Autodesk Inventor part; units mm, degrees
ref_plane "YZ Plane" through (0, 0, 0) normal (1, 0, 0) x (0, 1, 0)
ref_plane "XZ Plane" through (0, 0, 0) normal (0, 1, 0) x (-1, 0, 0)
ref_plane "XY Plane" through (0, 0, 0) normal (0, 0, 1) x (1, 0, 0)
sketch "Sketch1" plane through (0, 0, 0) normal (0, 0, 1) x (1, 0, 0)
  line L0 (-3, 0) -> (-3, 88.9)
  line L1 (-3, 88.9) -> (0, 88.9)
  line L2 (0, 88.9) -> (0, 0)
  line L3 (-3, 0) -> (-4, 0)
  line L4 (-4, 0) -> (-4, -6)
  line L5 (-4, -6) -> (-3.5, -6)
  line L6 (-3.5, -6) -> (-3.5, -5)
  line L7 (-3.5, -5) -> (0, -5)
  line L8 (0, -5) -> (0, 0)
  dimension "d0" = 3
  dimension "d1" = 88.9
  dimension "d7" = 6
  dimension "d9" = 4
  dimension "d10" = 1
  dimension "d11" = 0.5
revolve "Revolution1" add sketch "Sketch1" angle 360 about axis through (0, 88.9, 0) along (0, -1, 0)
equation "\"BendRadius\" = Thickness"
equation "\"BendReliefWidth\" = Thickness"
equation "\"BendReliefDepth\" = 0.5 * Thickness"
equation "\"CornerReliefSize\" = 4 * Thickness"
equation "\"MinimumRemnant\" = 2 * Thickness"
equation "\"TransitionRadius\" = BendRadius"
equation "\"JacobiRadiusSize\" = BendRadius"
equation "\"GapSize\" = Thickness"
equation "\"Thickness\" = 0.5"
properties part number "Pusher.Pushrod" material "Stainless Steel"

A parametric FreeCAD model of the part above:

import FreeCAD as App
import Part
import Sketcher

doc = App.newDocument("Part")
body = doc.addObject("PartDesign::Body", "Body")

sketch1 = body.newObject("Sketcher::SketchObject", "Sketch")
sketch1.AttachmentSupport = (doc.getObject("XY_Plane"), [""])
sketch1.MapMode = "FlatFace"
sketch1.addGeometry(Part.LineSegment(App.Vector(-3, 88.9, 0), App.Vector(-3, 0, 0)), False)
sketch1.addGeometry(Part.LineSegment(App.Vector(-3, 0, 0), App.Vector(-4, 0, 0)), False)
sketch1.addGeometry(Part.LineSegment(App.Vector(-4, 0, 0), App.Vector(-4, -6, 0)), False)
sketch1.addGeometry(Part.LineSegment(App.Vector(-4, -6, 0), App.Vector(-3.5, -6, 0)), False)
sketch1.addGeometry(Part.LineSegment(App.Vector(-3.5, -6, 0), App.Vector(-3.5, -5, 0)), False)
sketch1.addGeometry(Part.LineSegment(App.Vector(-3.5, -5, 0), App.Vector(0, -5, 0)), False)
sketch1.addGeometry(Part.LineSegment(App.Vector(0, -5, 0), App.Vector(0, 88.9, 0)), False)
sketch1.addGeometry(Part.LineSegment(App.Vector(0, 88.9, 0), App.Vector(-3, 88.9, 0)), False)
sketch1.addConstraint(Sketcher.Constraint("Coincident", 0, 2, 1, 1))
sketch1.addConstraint(Sketcher.Constraint("Coincident", 1, 2, 2, 1))
sketch1.addConstraint(Sketcher.Constraint("Coincident", 2, 2, 3, 1))
sketch1.addConstraint(Sketcher.Constraint("Coincident", 3, 2, 4, 1))
sketch1.addConstraint(Sketcher.Constraint("Coincident", 4, 2, 5, 1))
sketch1.addConstraint(Sketcher.Constraint("Coincident", 5, 2, 6, 1))
sketch1.addConstraint(Sketcher.Constraint("Coincident", 6, 2, 7, 1))
sketch1.addConstraint(Sketcher.Constraint("Coincident", 7, 2, 0, 1))
sketch1.addConstraint(Sketcher.Constraint("Vertical", 0))
sketch1.addConstraint(Sketcher.Constraint("Horizontal", 1))
sketch1.addConstraint(Sketcher.Constraint("Vertical", 2))
sketch1.addConstraint(Sketcher.Constraint("Horizontal", 3))
sketch1.addConstraint(Sketcher.Constraint("Vertical", 4))
sketch1.addConstraint(Sketcher.Constraint("Horizontal", 5))
sketch1.addConstraint(Sketcher.Constraint("Vertical", 6))
sketch1.addConstraint(Sketcher.Constraint("Horizontal", 7))
sketch1.addConstraint(Sketcher.Constraint("PointOnObject", 0, 2, -1))
sketch1.addConstraint(Sketcher.Constraint("PointOnObject", 5, 2, -2))
sketch1.addConstraint(Sketcher.Constraint("Equal", 1, 4))
sketch1.addConstraint(Sketcher.Constraint("DistanceX", 1, 2, 1, 1, 1.0))
sketch1.addConstraint(Sketcher.Constraint("DistanceX", 7, 2, 7, 1, 3.0))
sketch1.addConstraint(Sketcher.Constraint("DistanceY", 2, 2, 2, 1, 6.0))
sketch1.addConstraint(Sketcher.Constraint("DistanceX", 3, 1, 3, 2, 0.5))
sketch1.addConstraint(Sketcher.Constraint("DistanceY", 0, 2, 0, 1, 88.9))
revolution = body.newObject("PartDesign::Revolution", "Revolution")
revolution.Profile = sketch1
revolution.ReferenceAxis = (sketch1, ["V_Axis"])
revolution.Angle = 360

doc.recompute()
